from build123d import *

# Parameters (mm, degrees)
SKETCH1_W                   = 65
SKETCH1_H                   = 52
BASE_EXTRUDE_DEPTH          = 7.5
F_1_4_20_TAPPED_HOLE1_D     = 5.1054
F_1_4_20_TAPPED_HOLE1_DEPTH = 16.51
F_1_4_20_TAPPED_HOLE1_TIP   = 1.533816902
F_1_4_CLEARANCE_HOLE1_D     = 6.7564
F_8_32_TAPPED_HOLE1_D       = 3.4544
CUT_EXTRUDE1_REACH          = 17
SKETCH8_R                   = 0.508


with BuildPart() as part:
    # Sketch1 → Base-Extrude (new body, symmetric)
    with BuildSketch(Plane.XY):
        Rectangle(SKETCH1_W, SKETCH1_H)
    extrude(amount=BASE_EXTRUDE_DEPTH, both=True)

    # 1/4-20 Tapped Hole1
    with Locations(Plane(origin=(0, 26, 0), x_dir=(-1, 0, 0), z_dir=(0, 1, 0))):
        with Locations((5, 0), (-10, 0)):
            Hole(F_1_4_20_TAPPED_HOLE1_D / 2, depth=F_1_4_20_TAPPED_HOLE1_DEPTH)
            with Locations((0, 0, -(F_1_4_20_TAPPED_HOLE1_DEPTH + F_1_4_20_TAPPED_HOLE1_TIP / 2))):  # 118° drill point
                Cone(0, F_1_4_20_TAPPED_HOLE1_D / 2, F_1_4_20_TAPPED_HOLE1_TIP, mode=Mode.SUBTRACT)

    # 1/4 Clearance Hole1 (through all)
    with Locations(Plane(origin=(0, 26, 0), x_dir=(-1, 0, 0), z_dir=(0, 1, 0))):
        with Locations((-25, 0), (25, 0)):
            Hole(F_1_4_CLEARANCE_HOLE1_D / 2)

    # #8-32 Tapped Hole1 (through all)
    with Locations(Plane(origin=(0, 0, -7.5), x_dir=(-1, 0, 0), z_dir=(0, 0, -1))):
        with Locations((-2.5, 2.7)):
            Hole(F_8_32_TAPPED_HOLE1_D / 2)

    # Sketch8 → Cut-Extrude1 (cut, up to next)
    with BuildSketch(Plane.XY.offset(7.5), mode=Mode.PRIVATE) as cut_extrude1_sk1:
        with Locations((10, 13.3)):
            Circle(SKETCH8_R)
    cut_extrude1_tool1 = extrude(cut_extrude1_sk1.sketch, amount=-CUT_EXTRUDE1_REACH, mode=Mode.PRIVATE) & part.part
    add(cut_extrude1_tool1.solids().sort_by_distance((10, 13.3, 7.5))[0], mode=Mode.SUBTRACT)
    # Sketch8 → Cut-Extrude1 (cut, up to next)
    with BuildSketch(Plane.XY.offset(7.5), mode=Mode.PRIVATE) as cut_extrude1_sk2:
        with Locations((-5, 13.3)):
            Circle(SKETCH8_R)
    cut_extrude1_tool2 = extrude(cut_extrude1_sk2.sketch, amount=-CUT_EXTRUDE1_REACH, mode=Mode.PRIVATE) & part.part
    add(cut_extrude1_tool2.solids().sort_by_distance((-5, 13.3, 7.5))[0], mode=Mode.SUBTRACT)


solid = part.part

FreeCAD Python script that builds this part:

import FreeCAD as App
import Part
import Sketcher
Q = App.Units.Quantity


def add_polygon(sketch, points):
    """Adds a closed chain of lines whose ends are joined by coincident constraints."""
    first, n = sketch.GeometryCount, len(points)
    for a, b in zip(points, points[1:] + points[:1]):
        sketch.addGeometry(Part.LineSegment(App.Vector(*a, 0), App.Vector(*b, 0)), False)
    for i in range(n):
        sketch.addConstraint(Sketcher.Constraint("Coincident", first + i, 2, first + (i + 1) % n, 1))

doc = App.newDocument("Part")
body = doc.addObject("PartDesign::Body", "Body")

sketch1 = body.newObject("Sketcher::SketchObject", "Sketch")
sketch1.AttachmentSupport = (doc.getObject("XY_Plane"), [""])
sketch1.MapMode = "FlatFace"
add_polygon(sketch1, [(-32, 26), (-32, -26), (32, -26), (32, 26)])
sketch1.addConstraint([
    Sketcher.Constraint("Vertical", 0),
    Sketcher.Constraint("Horizontal", 1),
    Sketcher.Constraint("Vertical", 2),
    Sketcher.Constraint("Horizontal", 3),
    Sketcher.Constraint("Symmetric", 0, 2, 2, 2, -1, 1),
    Sketcher.Constraint("DistanceX", 1, 1, 1, 2, 65.0),
    Sketcher.Constraint("DistanceY", 0, 2, 0, 1, 52.0),
])
pad1 = body.newObject("PartDesign::Pad", "Pad")
pad1.Profile = sketch1
pad1.Length = 15
pad1.Midplane = True

sketch2 = body.newObject("Sketcher::SketchObject", "Sketch001")
sketch2.AttachmentSupport = (doc.getObject("XZ_Plane"), [""])
sketch2.MapMode = "FlatFace"
sketch2.AttachmentOffset = App.Placement(App.Vector(0, 0, -26), App.Rotation())
sketch2.addGeometry([
    Part.Circle(App.Vector(-5, 0, 0), App.Vector(0, 0, 1), 2.6),
    Part.Circle(App.Vector(10, 0, 0), App.Vector(0, 0, 1), 2.6),
], False)
sketch2.addConstraint([
    Sketcher.Constraint("Equal", 0, 1),
    Sketcher.Constraint("PointOnObject", 0, 3, -1),
    Sketcher.Constraint("PointOnObject", 1, 3, -1),
    Sketcher.Constraint("Diameter", 0, Q("0.201 in")),
    Sketcher.Constraint("DistanceX", 0, 3, -1, 1, 5.0),
    Sketcher.Constraint("DistanceX", -1, 1, 1, 3, 10.0),
])
doc.recompute()
hole = body.newObject("PartDesign::Hole", "Hole")
hole.Profile = sketch2
hole.ThreadType = "None"
hole.Diameter = Q("0.201 in")
hole.DepthType = "Dimension"
hole.Depth = Q("0.65 in")
hole.DrillPoint = "Angled"
hole.DrillPointAngle = 118
hole.Reversed = True

sketch3 = body.newObject("Sketcher::SketchObject", "Sketch002")
sketch3.AttachmentSupport = (doc.getObject("XZ_Plane"), [""])
sketch3.MapMode = "FlatFace"
sketch3.AttachmentOffset = App.Placement(App.Vector(0, 0, -26), App.Rotation())
sketch3.addGeometry([
    Part.Circle(App.Vector(25, 0, 0), App.Vector(0, 0, 1), 3.4),
    Part.Circle(App.Vector(-25, 0, 0), App.Vector(0, 0, 1), 3.4),
], False)
sketch3.addConstraint([
    Sketcher.Constraint("Equal", 0, 1),
    Sketcher.Constraint("Symmetric", 0, 3, 1, 3, -1, 1),
    Sketcher.Constraint("PointOnObject", 0, 3, -1),
    Sketcher.Constraint("Diameter", 0, Q("0.266 in")),
    Sketcher.Constraint("DistanceX", -1, 1, 0, 3, 25.0),
])
doc.recompute()
hole2 = body.newObject("PartDesign::Hole", "Hole001")
hole2.Profile = sketch3
hole2.ThreadType = "None"
hole2.Diameter = Q("0.266 in")
hole2.DepthType = "ThroughAll"
hole2.Reversed = True

sketch4 = body.newObject("Sketcher::SketchObject", "Sketch003")
sketch4.AttachmentSupport = (doc.getObject("XY_Plane"), [""])
sketch4.MapMode = "FlatFace"
sketch4.AttachmentOffset = App.Placement(App.Vector(0, 0, -7.5), App.Rotation())
sketch4.addGeometry(Part.Circle(App.Vector(2.5, 2.7, 0), App.Vector(0, 0, 1), 1.7), False)
sketch4.addConstraint([
    Sketcher.Constraint("Diameter", 0, Q("0.136 in")),
    Sketcher.Constraint("DistanceX", -1, 1, 0, 3, 2.5),
    Sketcher.Constraint("DistanceY", -1, 1, 0, 3, 2.7),
])
doc.recompute()
hole3 = body.newObject("PartDesign::Hole", "Hole002")
hole3.Profile = sketch4
hole3.ThreadType = "None"
hole3.Diameter = Q("0.136 in")
hole3.DepthType = "ThroughAll"
hole3.Reversed = True

sketch5 = body.newObject("Sketcher::SketchObject", "Sketch004")
sketch5.AttachmentSupport = (doc.getObject("XY_Plane"), [""])
sketch5.MapMode = "FlatFace"
sketch5.AttachmentOffset = App.Placement(App.Vector(0, 0, 7.5), App.Rotation())
sketch5.addGeometry(Part.Circle(App.Vector(10, 13.3, 0), App.Vector(0, 0, 1), 0.5), False)
sketch5.addConstraint([
    Sketcher.Constraint("Diameter", 0, Q("0.04 in")),
    Sketcher.Constraint("DistanceX", -1, 1, 0, 3, 10.0),
    Sketcher.Constraint("DistanceY", -1, 1, 0, 3, 13.3),
])
pocket1 = body.newObject("PartDesign::Pocket", "Pocket")
pocket1.Profile = sketch5
pocket1.Length = 4.998358

sketch6 = body.newObject("Sketcher::SketchObject", "Sketch005")
sketch6.AttachmentSupport = (doc.getObject("XY_Plane"), [""])
sketch6.MapMode = "FlatFace"
sketch6.AttachmentOffset = App.Placement(App.Vector(0, 0, 7.5), App.Rotation())
sketch6.addGeometry(Part.Circle(App.Vector(-5, 13.3, 0), App.Vector(0, 0, 1), 0.5), False)
sketch6.addConstraint([
    Sketcher.Constraint("Diameter", 0, Q("0.04 in")),
    Sketcher.Constraint("DistanceX", 0, 3, -1, 1, 5.0),
    Sketcher.Constraint("DistanceY", -1, 1, 0, 3, 13.3),
])
pocket2 = body.newObject("PartDesign::Pocket", "Pocket001")
pocket2.Profile = sketch6
pocket2.Length = 4.998358

doc.recompute()
